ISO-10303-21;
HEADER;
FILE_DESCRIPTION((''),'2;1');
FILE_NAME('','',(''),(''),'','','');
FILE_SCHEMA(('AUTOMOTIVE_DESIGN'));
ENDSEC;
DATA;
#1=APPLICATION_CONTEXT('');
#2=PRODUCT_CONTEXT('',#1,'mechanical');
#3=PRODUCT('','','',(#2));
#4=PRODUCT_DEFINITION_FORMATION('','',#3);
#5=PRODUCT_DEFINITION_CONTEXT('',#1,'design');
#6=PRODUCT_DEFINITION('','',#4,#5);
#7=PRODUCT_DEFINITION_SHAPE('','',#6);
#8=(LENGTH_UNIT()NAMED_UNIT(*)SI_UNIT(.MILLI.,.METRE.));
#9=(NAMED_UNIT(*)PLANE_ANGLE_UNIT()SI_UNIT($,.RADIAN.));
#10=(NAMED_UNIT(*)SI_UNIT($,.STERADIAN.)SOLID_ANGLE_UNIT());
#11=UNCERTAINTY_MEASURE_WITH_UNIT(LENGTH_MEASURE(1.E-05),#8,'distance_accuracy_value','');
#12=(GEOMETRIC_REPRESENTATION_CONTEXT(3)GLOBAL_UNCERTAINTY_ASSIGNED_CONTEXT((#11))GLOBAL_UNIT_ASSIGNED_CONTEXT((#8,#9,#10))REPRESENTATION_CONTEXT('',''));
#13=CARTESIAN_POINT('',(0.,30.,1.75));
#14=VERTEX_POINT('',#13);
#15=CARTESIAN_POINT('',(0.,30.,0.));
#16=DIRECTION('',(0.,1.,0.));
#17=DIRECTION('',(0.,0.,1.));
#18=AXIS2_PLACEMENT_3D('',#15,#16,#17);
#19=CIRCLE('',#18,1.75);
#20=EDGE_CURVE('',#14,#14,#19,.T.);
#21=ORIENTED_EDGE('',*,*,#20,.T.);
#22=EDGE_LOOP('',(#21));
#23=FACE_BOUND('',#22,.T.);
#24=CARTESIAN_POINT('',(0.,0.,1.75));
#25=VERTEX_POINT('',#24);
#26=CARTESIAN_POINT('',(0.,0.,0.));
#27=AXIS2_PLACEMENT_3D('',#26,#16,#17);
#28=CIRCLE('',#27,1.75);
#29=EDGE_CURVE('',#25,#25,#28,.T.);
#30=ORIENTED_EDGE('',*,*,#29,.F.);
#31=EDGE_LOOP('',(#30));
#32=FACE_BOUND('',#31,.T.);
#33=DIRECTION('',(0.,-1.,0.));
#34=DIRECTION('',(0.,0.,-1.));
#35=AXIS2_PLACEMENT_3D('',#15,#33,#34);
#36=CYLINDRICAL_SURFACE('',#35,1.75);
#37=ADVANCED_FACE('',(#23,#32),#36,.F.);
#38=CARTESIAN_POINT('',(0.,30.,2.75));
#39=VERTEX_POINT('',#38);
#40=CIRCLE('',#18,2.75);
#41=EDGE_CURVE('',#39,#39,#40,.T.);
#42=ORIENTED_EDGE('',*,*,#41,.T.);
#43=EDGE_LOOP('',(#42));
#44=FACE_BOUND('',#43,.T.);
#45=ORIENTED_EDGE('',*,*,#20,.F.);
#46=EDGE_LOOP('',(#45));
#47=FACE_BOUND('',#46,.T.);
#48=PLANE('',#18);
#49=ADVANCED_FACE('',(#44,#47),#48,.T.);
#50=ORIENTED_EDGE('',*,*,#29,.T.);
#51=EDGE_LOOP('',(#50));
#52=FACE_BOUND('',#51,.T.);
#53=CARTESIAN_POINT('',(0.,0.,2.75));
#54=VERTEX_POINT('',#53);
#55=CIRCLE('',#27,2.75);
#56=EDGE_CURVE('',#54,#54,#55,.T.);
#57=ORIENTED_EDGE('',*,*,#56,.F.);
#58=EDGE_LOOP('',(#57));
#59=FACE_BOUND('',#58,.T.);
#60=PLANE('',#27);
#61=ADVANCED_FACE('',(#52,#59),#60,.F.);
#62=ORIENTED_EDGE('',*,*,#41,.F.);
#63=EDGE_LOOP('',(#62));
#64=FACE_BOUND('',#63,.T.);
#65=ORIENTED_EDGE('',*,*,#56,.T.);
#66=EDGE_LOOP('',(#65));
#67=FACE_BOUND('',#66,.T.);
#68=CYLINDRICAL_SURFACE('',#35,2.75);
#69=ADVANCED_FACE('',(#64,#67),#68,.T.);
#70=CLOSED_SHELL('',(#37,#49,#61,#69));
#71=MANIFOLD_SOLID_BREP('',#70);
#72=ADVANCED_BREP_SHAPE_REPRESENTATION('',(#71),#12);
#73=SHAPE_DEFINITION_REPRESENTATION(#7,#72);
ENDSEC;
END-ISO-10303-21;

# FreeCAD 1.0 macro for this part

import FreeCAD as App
import Part
import Sketcher

doc = App.newDocument("Part")
body = doc.addObject("PartDesign::Body", "Body")

sketch1 = body.newObject("Sketcher::SketchObject", "Sketch")
sketch1.AttachmentSupport = (doc.getObject("XZ_Plane"), [""])
sketch1.MapMode = "FlatFace"
sketch1.addGeometry(Part.Circle(App.Vector(0, 0, 0), App.Vector(0, 0, 1), 2.8), False)
sketch1.addGeometry(Part.Circle(App.Vector(0, 0, 0), App.Vector(0, 0, 1), 1.8), False)
sketch1.addConstraint(Sketcher.Constraint("Coincident", 0, 3, -1, 1))
sketch1.addConstraint(Sketcher.Constraint("Coincident", 1, 3, -1, 1))
sketch1.addConstraint(Sketcher.Constraint("Diameter", 0, 5.5))
sketch1.addConstraint(Sketcher.Constraint("Diameter", 1, 3.5))
pad1 = body.newObject("PartDesign::Pad", "Pad")
pad1.Profile = sketch1
pad1.Length = 30
pad1.Reversed = True

doc.recompute()
